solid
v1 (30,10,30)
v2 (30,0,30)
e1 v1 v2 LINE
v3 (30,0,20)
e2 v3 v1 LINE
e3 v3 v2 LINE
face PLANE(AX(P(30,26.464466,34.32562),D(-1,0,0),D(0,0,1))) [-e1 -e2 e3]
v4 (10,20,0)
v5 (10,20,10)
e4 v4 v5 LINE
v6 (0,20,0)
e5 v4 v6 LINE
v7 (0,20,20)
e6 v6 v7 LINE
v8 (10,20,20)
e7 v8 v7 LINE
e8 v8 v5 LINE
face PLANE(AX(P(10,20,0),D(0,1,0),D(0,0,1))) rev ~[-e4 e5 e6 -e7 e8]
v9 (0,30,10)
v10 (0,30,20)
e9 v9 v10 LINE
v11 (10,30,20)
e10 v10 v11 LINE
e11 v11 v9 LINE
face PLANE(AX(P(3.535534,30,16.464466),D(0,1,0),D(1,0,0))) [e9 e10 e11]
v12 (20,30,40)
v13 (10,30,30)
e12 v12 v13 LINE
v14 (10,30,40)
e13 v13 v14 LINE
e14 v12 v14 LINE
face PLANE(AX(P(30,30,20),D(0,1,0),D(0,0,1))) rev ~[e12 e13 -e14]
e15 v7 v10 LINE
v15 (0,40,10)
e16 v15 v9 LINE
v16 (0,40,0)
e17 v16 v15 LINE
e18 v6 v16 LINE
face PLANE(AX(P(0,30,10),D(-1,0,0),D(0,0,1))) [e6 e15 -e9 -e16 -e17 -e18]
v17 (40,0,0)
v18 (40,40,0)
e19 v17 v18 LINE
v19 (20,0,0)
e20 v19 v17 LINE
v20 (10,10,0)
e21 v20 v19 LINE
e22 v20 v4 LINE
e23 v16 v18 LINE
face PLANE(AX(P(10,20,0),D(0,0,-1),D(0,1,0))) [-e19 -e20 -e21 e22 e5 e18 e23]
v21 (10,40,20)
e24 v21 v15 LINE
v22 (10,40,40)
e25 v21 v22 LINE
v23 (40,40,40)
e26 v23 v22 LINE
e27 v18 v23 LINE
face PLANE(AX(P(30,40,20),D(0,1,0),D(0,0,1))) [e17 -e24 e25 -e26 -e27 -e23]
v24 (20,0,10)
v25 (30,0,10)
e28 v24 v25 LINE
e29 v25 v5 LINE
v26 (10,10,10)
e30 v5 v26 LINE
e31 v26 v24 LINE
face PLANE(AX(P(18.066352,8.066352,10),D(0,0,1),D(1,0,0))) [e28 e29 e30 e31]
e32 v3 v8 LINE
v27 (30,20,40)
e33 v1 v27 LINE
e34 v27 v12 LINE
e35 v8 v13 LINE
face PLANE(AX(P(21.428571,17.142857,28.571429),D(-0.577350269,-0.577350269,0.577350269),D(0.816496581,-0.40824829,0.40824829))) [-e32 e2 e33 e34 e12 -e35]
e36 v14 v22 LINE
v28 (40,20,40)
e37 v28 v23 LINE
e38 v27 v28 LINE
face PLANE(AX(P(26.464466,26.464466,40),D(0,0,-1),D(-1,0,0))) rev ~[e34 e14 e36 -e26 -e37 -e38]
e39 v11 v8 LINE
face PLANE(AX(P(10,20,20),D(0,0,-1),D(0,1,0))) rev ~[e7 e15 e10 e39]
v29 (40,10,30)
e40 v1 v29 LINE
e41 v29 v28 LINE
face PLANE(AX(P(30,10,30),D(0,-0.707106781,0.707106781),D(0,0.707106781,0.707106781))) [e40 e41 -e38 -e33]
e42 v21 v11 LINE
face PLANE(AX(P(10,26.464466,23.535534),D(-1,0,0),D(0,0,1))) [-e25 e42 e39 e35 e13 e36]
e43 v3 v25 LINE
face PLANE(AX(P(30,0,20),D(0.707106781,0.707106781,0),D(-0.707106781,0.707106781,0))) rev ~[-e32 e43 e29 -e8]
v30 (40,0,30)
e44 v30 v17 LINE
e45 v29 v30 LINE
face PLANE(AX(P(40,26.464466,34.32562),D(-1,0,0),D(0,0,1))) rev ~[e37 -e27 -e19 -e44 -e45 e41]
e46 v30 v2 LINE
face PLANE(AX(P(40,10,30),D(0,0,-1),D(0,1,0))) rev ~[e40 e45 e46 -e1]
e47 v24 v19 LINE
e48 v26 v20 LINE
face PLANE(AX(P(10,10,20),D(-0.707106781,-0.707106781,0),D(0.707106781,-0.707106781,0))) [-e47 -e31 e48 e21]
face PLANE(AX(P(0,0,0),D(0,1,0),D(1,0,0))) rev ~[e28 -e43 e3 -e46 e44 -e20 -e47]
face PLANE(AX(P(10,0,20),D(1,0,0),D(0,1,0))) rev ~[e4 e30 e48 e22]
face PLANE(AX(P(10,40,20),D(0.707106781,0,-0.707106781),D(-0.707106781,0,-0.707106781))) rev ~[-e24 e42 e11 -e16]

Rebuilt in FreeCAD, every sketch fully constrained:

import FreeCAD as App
import Part
import Sketcher
from FreeCAD import Vector
Q = App.Units.Quantity


def add_polygon(sketch, points):
    """Adds a closed chain of lines whose ends are joined by coincident constraints."""
    first, n = sketch.GeometryCount, len(points)
    for a, b in zip(points, points[1:] + points[:1]):
        sketch.addGeometry(Part.LineSegment(App.Vector(*a, 0), App.Vector(*b, 0)), False)
    for i in range(n):
        sketch.addConstraint(Sketcher.Constraint("Coincident", first + i, 2, first + (i + 1) % n, 1))

doc = App.newDocument("Part")
params = doc.addObject("Spreadsheet::Sheet", "Params")
for row, (alias, value) in enumerate([
    ("sketch1_width", "40 mm"),
    ("pad1_length", "20 mm"),
    ("sketch2_width", "30 mm"),
    ("sketch2_height", "10 mm"),
    ("pad2_length", "10 mm"),
    ("sketch3_width", "10 mm"),
    ("pad3_length", "10 mm"),
    ("sketch4_width", "10 mm"),
    ("pad4_length", "10 mm"),
    ("sketch5_width", "10 mm"),
    ("sketch5_height", "40 mm"),
    ("pocket1_length", "25 mm"),
    ("sketch6_width", "10 mm"),
    ("pocket2_length", "25 mm"),
    ("sketch7_width", "10 mm"),
    ("pocket3_length", "10 mm"),
    ("sketch8_width", "20 mm"),
    ("pad5_length", "10 mm"),
    ("sketch9_width", "10 mm"),
    ("pocket4_length", "10 mm"),
    ("sketch10_width", "20 mm"),
    ("sketch10_width2", "30 mm"),
    ("sketch10_height", "10 mm"),
    ("pad6_length", "10 mm"),
    ("sketch11_width", "10 mm"),
    ("sketch11_height", "20 mm"),
    ("pad7_length", "20 mm"),
    ("sketch12_width", "10 mm"),
    ("pad8_length", "20 mm"),
    ("sketch13_width", "10 mm"),
    ("pad9_length", "20 mm"),
    ("pad10_length", "17 mm"),
], start=1):
    params.set(f"A{row}", alias)
    params.set(f"B{row}", "=" + value)
    params.setAlias(f"B{row}", alias)

body = doc.addObject("PartDesign::Body", "Body")

# Sketch on XY plane
sketch1 = body.newObject("Sketcher::SketchObject", "Sketch")
sketch1.AttachmentSupport = (doc.getObject("XY_Plane"), [""])
sketch1.MapMode = "FlatFace"
add_polygon(sketch1, [(0, 40), (0, 0), (40, 0), (40, 40)])  # lines 0-3
sketch1.addConstraint([
    Sketcher.Constraint("Vertical", 0),
    Sketcher.Constraint("Horizontal", 1),
    Sketcher.Constraint("Vertical", 2),
    Sketcher.Constraint("Horizontal", 3),
    Sketcher.Constraint("Coincident", 0, 2, -1, 1),
    Sketcher.Constraint("Equal", 3, 0),
    Sketcher.Constraint("DistanceX", 1, 1, 1, 2, 40.0),
])
sketch1.setExpression("Constraints[10]", "Params.sketch1_width")
pad1 = body.newObject("PartDesign::Pad", "Pad")
pad1.Profile = sketch1
pad1.setExpression("Length", "Params.pad1_length")

# Sketch on YZ plane
sketch2 = body.newObject("Sketcher::SketchObject", "Sketch001")
sketch2.AttachmentSupport = (doc.getObject("YZ_Plane"), [""])
sketch2.MapMode = "FlatFace"
sketch2.AttachmentOffset = App.Placement(Vector(0, 0, 40), App.Rotation())
add_polygon(sketch2, [(40, 30), (10, 30), (10, 20), (40, 20)])  # lines 0-3
sketch2.addConstraint([
    Sketcher.Constraint("Horizontal", 0),
    Sketcher.Constraint("Vertical", 1),
    Sketcher.Constraint("Horizontal", 2),
    Sketcher.Constraint("Vertical", 3),
    Sketcher.Constraint("DistanceX", 0, 2, 0, 1, 30.0),
    Sketcher.Constraint("DistanceY", 1, 2, 1, 1, 10.0),
    Sketcher.Constraint("DistanceX", -1, 1, 0, 2, 10.0),
    Sketcher.Constraint("DistanceY", -1, 1, 0, 2, 30.0),
])
sketch2.setExpression("Constraints[8]", "Params.sketch2_width")
sketch2.setExpression("Constraints[9]", "Params.sketch2_height")
pad2 = body.newObject("PartDesign::Pad", "Pad001")
pad2.Profile = sketch2
pad2.setExpression("Length", "Params.pad2_length")
pad2.Reversed = True
body2 = doc.addObject("PartDesign::Body", "Body001")

# Sketch on YZ plane
sketch3 = body2.newObject("Sketcher::SketchObject", "Sketch002")
sketch3.AttachmentSupport = (doc.getObject("YZ_Plane001"), [""])
sketch3.MapMode = "FlatFace"
sketch3.AttachmentOffset = App.Placement(Vector(0, 0, 40), App.Rotation())
add_polygon(sketch3, [(0, 20), (10, 30), (0, 30)])  # lines 0-2
sketch3.addConstraint([
    Sketcher.Constraint("Horizontal", 1),
    Sketcher.Constraint("Vertical", 2),
    Sketcher.Constraint("PointOnObject", 1, 2, -2),
    Sketcher.Constraint("Equal", 1, 2),
    Sketcher.Constraint("DistanceX", 1, 2, 1, 1, 10.0),
    Sketcher.Constraint("DistanceY", -1, 1, 0, 2, 30.0),
])
sketch3.setExpression("Constraints[7]", "Params.sketch3_width")
pad3 = body2.newObject("PartDesign::Pad", "Pad002")
pad3.Profile = sketch3
pad3.setExpression("Length", "Params.pad3_length")
pad3.Reversed = True
body.AllowCompound = True
doc.recompute()

boolean = body.newObject("PartDesign::Boolean", "Boolean")
boolean.Type = "Fuse"
boolean.addObjects([body2])

# Sketch on YZ plane
sketch4 = body.newObject("Sketcher::SketchObject", "Sketch003")
sketch4.AttachmentSupport = (doc.getObject("YZ_Plane"), [""])
sketch4.MapMode = "FlatFace"
sketch4.AttachmentOffset = App.Placement(Vector(0, 0, 40), App.Rotation())
add_polygon(sketch4, [(0, 20), (10, 20), (10, 30)])  # lines 0-2
sketch4.addConstraint([
    Sketcher.Constraint("Horizontal", 0),
    Sketcher.Constraint("Vertical", 1),
    Sketcher.Constraint("PointOnObject", 2, 2, -2),
    Sketcher.Constraint("Equal", 0, 1),
    Sketcher.Constraint("DistanceX", 0, 1, 0, 2, 10.0),
    Sketcher.Constraint("DistanceY", -1, 1, 0, 2, 20.0),
])
sketch4.setExpression("Constraints[7]", "Params.sketch4_width")
pad4 = body.newObject("PartDesign::Pad", "Pad003")
pad4.Profile = sketch4
pad4.setExpression("Length", "Params.pad4_length")
pad4.Reversed = True

# Sketch on XY plane
sketch5 = body.newObject("Sketcher::SketchObject", "Sketch004")
sketch5.AttachmentSupport = (doc.getObject("XY_Plane"), [""])
sketch5.MapMode = "FlatFace"
sketch5.AttachmentOffset = App.Placement(Vector(0, 0, 20), App.Rotation())
add_polygon(sketch5, [(0, 40), (0, 0), (10, 0), (10, 40)])  # lines 0-3
sketch5.addConstraint([
    Sketcher.Constraint("Vertical", 0),
    Sketcher.Constraint("Horizontal", 1),
    Sketcher.Constraint("Vertical", 2),
    Sketcher.Constraint("Horizontal", 3),
    Sketcher.Constraint("Coincident", 0, 2, -1, 1),
    Sketcher.Constraint("DistanceX", 1, 1, 1, 2, 10.0),
    Sketcher.Constraint("DistanceY", 0, 2, 0, 1, 40.0),
])
sketch5.setExpression("Constraints[9]", "Params.sketch5_width")
sketch5.setExpression("Constraints[10]", "Params.sketch5_height")
pocket1 = body.newObject("PartDesign::Pocket", "Pocket")
pocket1.Profile = sketch5
pocket1.setExpression("Length", "Params.pocket1_length")

# Sketch on XY plane
sketch6 = body.newObject("Sketcher::SketchObject", "Sketch005")
sketch6.AttachmentSupport = (doc.getObject("XY_Plane"), [""])
sketch6.MapMode = "FlatFace"
sketch6.AttachmentOffset = App.Placement(Vector(0, 0, 20), App.Rotation())
add_polygon(sketch6, [(20, 0), (10, 10), (10, 0)])  # lines 0-2
sketch6.addConstraint([
    Sketcher.Constraint("Vertical", 1),
    Sketcher.Constraint("Horizontal", 2),
    Sketcher.Constraint("PointOnObject", 1, 2, -1),
    Sketcher.Constraint("Equal", 2, 1),
    Sketcher.Constraint("DistanceX", 2, 1, 2, 2, 10.0),
    Sketcher.Constraint("DistanceX", -1, 1, 0, 2, 10.0),
])
sketch6.setExpression("Constraints[7]", "Params.sketch6_width")
pocket2 = body.newObject("PartDesign::Pocket", "Pocket001")
pocket2.Profile = sketch6
pocket2.setExpression("Length", "Params.pocket2_length")

# Sketch on XY plane
sketch7 = body.newObject("Sketcher::SketchObject", "Sketch006")
sketch7.AttachmentSupport = (doc.getObject("XY_Plane"), [""])
sketch7.MapMode = "FlatFace"
sketch7.AttachmentOffset = App.Placement(Vector(0, 0, 20), App.Rotation())
add_polygon(sketch7, [(30, 0), (10, 20), (10, 10), (20, 0)])  # lines 0-3
sketch7.addConstraint([
    Sketcher.Constraint("Vertical", 1),
    Sketcher.Constraint("Horizontal", 3),
    Sketcher.Constraint("PointOnObject", 2, 2, -1),
    Sketcher.Constraint("Parallel", 0, 2),
    Sketcher.Constraint("Equal", 3, 1),
    Sketcher.Constraint("DistanceX", 3, 1, 3, 2, 10.0),
    Sketcher.Constraint("DistanceX", -1, 1, 0, 2, 10.0),
    Sketcher.Constraint("DistanceY", -1, 1, 0, 2, 20.0),
])
sketch7.setExpression("Constraints[9]", "Params.sketch7_width")
pocket3 = body.newObject("PartDesign::Pocket", "Pocket002")
pocket3.Profile = sketch7
pocket3.setExpression("Length", "Params.pocket3_length")

# Sketch on YZ plane
sketch8 = body.newObject("Sketcher::SketchObject", "Sketch007")
sketch8.AttachmentSupport = (doc.getObject("YZ_Plane"), [""])
sketch8.MapMode = "FlatFace"
sketch8.AttachmentOffset = App.Placement(Vector(0, 0, 10), App.Rotation())
add_polygon(sketch8, [(40, 0), (20, 0), (20, 20), (40, 20)])  # lines 0-3
sketch8.addConstraint([
    Sketcher.Constraint("Horizontal", 0),
    Sketcher.Constraint("Vertical", 1),
    Sketcher.Constraint("Horizontal", 2),
    Sketcher.Constraint("Vertical", 3),
    Sketcher.Constraint("PointOnObject", 0, 2, -1),
    Sketcher.Constraint("Equal", 2, 1),
    Sketcher.Constraint("DistanceX", 0, 2, 0, 1, 20.0),
    Sketcher.Constraint("DistanceX", -1, 1, 0, 2, 20.0),
])
sketch8.setExpression("Constraints[10]", "Params.sketch8_width")
pad5 = body.newObject("PartDesign::Pad", "Pad004")
pad5.Profile = sketch8
pad5.setExpression("Length", "Params.pad5_length")
pad5.Reversed = True

# Sketch on XZ plane
sketch9 = body.newObject("Sketcher::SketchObject", "Sketch008")
sketch9.AttachmentSupport = (doc.getObject("XZ_Plane"), [""])
sketch9.MapMode = "FlatFace"
sketch9.AttachmentOffset = App.Placement(Vector(0, 0, -40), App.Rotation())
add_polygon(sketch9, [(10, 20), (0, 10), (0, 20)])  # lines 0-2
sketch9.addConstraint([
    Sketcher.Constraint("Vertical", 1),
    Sketcher.Constraint("Horizontal", 2),
    Sketcher.Constraint("PointOnObject", 0, 2, -2),
    Sketcher.Constraint("Equal", 2, 1),
    Sketcher.Constraint("DistanceX", 2, 1, 2, 2, 10.0),
    Sketcher.Constraint("DistanceY", -1, 1, 0, 2, 10.0),
])
sketch9.setExpression("Constraints[7]", "Params.sketch9_width")
pocket4 = body.newObject("PartDesign::Pocket", "Pocket003")
pocket4.Profile = sketch9
pocket4.setExpression("Length", "Params.pocket4_length")
pocket4.Reversed = True

# Sketch on YZ plane
sketch10 = body.newObject("Sketcher::SketchObject", "Sketch009")
sketch10.AttachmentSupport = (doc.getObject("YZ_Plane"), [""])
sketch10.MapMode = "FlatFace"
sketch10.AttachmentOffset = App.Placement(Vector(0, 0, 30), App.Rotation())
add_polygon(sketch10, [(10, 30), (20, 40), (40, 40), (40, 30)])  # lines 0-3
sketch10.addConstraint([
    Sketcher.Constraint("Horizontal", 1),
    Sketcher.Constraint("Vertical", 2),
    Sketcher.Constraint("Horizontal", 3),
    Sketcher.Constraint("DistanceX", 1, 1, 1, 2, 20.0),
    Sketcher.Constraint("DistanceX", 3, 2, 3, 1, 30.0),
    Sketcher.Constraint("DistanceY", 2, 2, 2, 1, 10.0),
    Sketcher.Constraint("DistanceX", -1, 1, 0, 2, 20.0),
    Sketcher.Constraint("DistanceY", -1, 1, 0, 2, 40.0),
])
sketch10.setExpression("Constraints[7]", "Params.sketch10_width")
sketch10.setExpression("Constraints[8]", "Params.sketch10_width2")
sketch10.setExpression("Constraints[9]", "Params.sketch10_height")
pad6 = body.newObject("PartDesign::Pad", "Pad005")
pad6.Profile = sketch10
pad6.setExpression("Length", "Params.pad6_length")

# Sketch on YZ plane
sketch11 = body.newObject("Sketcher::SketchObject", "Sketch010")
sketch11.AttachmentSupport = (doc.getObject("YZ_Plane"), [""])
sketch11.MapMode = "FlatFace"
sketch11.AttachmentOffset = App.Placement(Vector(0, 0, 30), App.Rotation())
add_polygon(sketch11, [(40, 20), (30, 20), (30, 40), (40, 40)])  # lines 0-3
sketch11.addConstraint([
    Sketcher.Constraint("Horizontal", 0),
    Sketcher.Constraint("Vertical", 1),
    Sketcher.Constraint("Horizontal", 2),
    Sketcher.Constraint("Vertical", 3),
    Sketcher.Constraint("DistanceX", 0, 2, 0, 1, 10.0),
    Sketcher.Constraint("DistanceY", 1, 1, 1, 2, 20.0),
    Sketcher.Constraint("DistanceX", -1, 1, 0, 2, 30.0),
    Sketcher.Constraint("DistanceY", -1, 1, 0, 2, 20.0),
])
sketch11.setExpression("Constraints[8]", "Params.sketch11_width")
sketch11.setExpression("Constraints[9]", "Params.sketch11_height")
pad7 = body.newObject("PartDesign::Pad", "Pad006")
pad7.Profile = sketch11
pad7.setExpression("Length", "Params.pad7_length")
pad7.Reversed = True

# Sketch on XY plane
sketch12 = body.newObject("Sketcher::SketchObject", "Sketch011")
sketch12.AttachmentSupport = (doc.getObject("XY_Plane"), [""])
sketch12.MapMode = "FlatFace"
sketch12.AttachmentOffset = App.Placement(Vector(0, 0, 40), App.Rotation())
add_polygon(sketch12, [(20, 30), (30, 20), (30, 30)])  # lines 0-2
sketch12.addConstraint([
    Sketcher.Constraint("Vertical", 1),
    Sketcher.Constraint("Horizontal", 2),
    Sketcher.Constraint("Equal", 2, 1),
    Sketcher.Constraint("DistanceX", 2, 2, 2, 1, 10.0),
    Sketcher.Constraint("DistanceX", -1, 1, 0, 2, 30.0),
    Sketcher.Constraint("DistanceY", -1, 1, 0, 2, 20.0),
])
sketch12.setExpression("Constraints[6]", "Params.sketch12_width")
pad8 = body.newObject("PartDesign::Pad", "Pad007")
pad8.Profile = sketch12
pad8.setExpression("Length", "Params.pad8_length")
pad8.Reversed = True

# Sketch on YZ plane
sketch13 = body.newObject("Sketcher::SketchObject", "Sketch012")
sketch13.AttachmentSupport = (doc.getObject("YZ_Plane"), [""])
sketch13.MapMode = "FlatFace"
sketch13.AttachmentOffset = App.Placement(Vector(0, 0, 10), App.Rotation())
add_polygon(sketch13, [(20, 20), (30, 30), (30, 20)])  # lines 0-2
sketch13.addConstraint([
    Sketcher.Constraint("Vertical", 1),
    Sketcher.Constraint("Horizontal", 2),
    Sketcher.Constraint("Equal", 2, 1),
    Sketcher.Constraint("DistanceX", 2, 2, 2, 1, 10.0),
    Sketcher.Constraint("DistanceX", -1, 1, 0, 2, 30.0),
    Sketcher.Constraint("DistanceY", -1, 1, 0, 2, 30.0),
])
sketch13.setExpression("Constraints[6]", "Params.sketch13_width")
pad9 = body.newObject("PartDesign::Pad", "Pad008")
pad9.Profile = sketch13
pad9.setExpression("Length", "Params.pad9_length")

# Sketch on an angled plane
sketch14 = body.newObject("Sketcher::SketchObject", "Sketch013")
sketch14.Placement = App.Placement(Vector(3.333333, 3.333333, -3.333333), App.Rotation(Vector(-0.816496581, 0.40824829, -0.40824829), Vector(0, 0.707106781, 0.707106781), Vector(0.577350269, 0.577350269, -0.577350269), "ZXY"))
add_polygon(sketch14, [(-20, 49), (-33, 42), (-33, 14), (-8, 28), (-8, 42)])  # lines 0-4
sketch14.addConstraint([
    Sketcher.Constraint("Vertical", 1),
    Sketcher.Constraint("Vertical", 3),
    Sketcher.Constraint("Parallel", 0, 2),
    Sketcher.Constraint("Horizontal", 0, 2, 3, 2),
    Sketcher.Constraint("Equal", 0, 4),
    Sketcher.Constraint("Angle", 0, Q("-150 deg")),
    Sketcher.Constraint("DistanceY", 1, 2, 1, 1, 28.284271),
    Sketcher.Constraint("Distance", 2, 28.284271),
    Sketcher.Constraint("DistanceY", -1, 1, 2, 2, 28.284271),
    Sketcher.Constraint("DistanceX", 0, 2, -1, 1, 32.659863),
])
pad10 = body.newObject("PartDesign::Pad", "Pad009")
pad10.Profile = sketch14
pad10.setExpression("Length", "Params.pad10_length")

doc.recompute()
